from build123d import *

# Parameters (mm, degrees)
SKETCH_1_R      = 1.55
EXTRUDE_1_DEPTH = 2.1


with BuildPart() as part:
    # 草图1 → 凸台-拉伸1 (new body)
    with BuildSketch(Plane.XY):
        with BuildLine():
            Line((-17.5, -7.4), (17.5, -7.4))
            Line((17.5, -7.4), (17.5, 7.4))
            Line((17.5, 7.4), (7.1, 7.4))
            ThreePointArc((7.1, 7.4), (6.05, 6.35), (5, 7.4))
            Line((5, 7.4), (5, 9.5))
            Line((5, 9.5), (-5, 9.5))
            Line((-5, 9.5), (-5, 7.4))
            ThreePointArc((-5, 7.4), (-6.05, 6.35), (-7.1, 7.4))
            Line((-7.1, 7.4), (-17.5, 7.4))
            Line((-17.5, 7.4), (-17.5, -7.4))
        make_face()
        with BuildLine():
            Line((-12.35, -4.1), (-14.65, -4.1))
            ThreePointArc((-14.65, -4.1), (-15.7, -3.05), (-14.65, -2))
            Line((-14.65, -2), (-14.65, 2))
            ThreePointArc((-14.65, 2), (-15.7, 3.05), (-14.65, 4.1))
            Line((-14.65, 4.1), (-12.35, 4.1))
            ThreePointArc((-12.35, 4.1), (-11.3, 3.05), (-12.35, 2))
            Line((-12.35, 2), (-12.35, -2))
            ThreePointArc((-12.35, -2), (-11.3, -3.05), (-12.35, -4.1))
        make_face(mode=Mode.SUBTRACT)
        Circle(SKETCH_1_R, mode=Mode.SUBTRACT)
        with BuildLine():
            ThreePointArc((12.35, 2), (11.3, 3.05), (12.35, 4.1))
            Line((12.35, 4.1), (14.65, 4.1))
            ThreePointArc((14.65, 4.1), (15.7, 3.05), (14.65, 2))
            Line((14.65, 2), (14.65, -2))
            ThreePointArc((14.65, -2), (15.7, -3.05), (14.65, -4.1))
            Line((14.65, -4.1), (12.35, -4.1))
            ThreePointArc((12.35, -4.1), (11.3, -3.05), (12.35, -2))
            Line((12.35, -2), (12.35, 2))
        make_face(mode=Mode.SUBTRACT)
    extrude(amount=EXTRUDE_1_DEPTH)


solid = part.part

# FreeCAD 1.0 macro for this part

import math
import FreeCAD as App
import Part
import Sketcher

doc = App.newDocument("Part")
body = doc.addObject("PartDesign::Body", "Body")

sketch1 = body.newObject("Sketcher::SketchObject", "Sketch")
sketch1.AttachmentSupport = (doc.getObject("XY_Plane"), [""])
sketch1.MapMode = "FlatFace"
sketch1.addGeometry([
    Part.LineSegment(App.Vector(-17.5, -7.4, 0), App.Vector(17.5, -7.4, 0)),
    Part.LineSegment(App.Vector(17.5, -7.4, 0), App.Vector(17.5, 7.4, 0)),
    Part.LineSegment(App.Vector(17.5, 7.4, 0), App.Vector(7.1, 7.4, 0)),
    Part.ArcOfCircle(Part.Circle(App.Vector(6, 7.4, 0), App.Vector(0, 0, 1), 1.1), math.radians(180), math.radians(360)),
    Part.LineSegment(App.Vector(5, 7.4, 0), App.Vector(5, 9.5, 0)),
    Part.LineSegment(App.Vector(5, 9.5, 0), App.Vector(-5, 9.5, 0)),
    Part.LineSegment(App.Vector(-5, 9.5, 0), App.Vector(-5, 7.4, 0)),
    Part.ArcOfCircle(Part.Circle(App.Vector(-6, 7.4, 0), App.Vector(0, 0, 1), 1.1), math.radians(180), math.radians(360)),
    Part.LineSegment(App.Vector(-7.1, 7.4, 0), App.Vector(-17.5, 7.4, 0)),
    Part.LineSegment(App.Vector(-17.5, 7.4, 0), App.Vector(-17.5, -7.4, 0)),
    Part.ArcOfCircle(Part.Circle(App.Vector(-12.3, -3, 0), App.Vector(0, 0, 1), 1.1), math.radians(-90), math.radians(90)),
    Part.LineSegment(App.Vector(-12.3, -4.1, 0), App.Vector(-14.7, -4.1, 0)),
    Part.ArcOfCircle(Part.Circle(App.Vector(-14.7, -3, 0), App.Vector(0, 0, 1), 1.1), math.radians(90), math.radians(270)),
    Part.LineSegment(App.Vector(-14.7, -2, 0), App.Vector(-14.7, 2, 0)),
    Part.ArcOfCircle(Part.Circle(App.Vector(-14.7, 3, 0), App.Vector(0, 0, 1), 1.1), math.radians(90), math.radians(270)),
    Part.LineSegment(App.Vector(-14.7, 4.1, 0), App.Vector(-12.3, 4.1, 0)),
    Part.ArcOfCircle(Part.Circle(App.Vector(-12.3, 3, 0), App.Vector(0, 0, 1), 1.1), math.radians(-90), math.radians(90)),
    Part.LineSegment(App.Vector(-12.3, 2, 0), App.Vector(-12.3, -2, 0)),
    Part.Circle(App.Vector(0, 0, 0), App.Vector(0, 0, 1), 1.6),
    Part.LineSegment(App.Vector(12.3, -2, 0), App.Vector(12.3, 2, 0)),
    Part.ArcOfCircle(Part.Circle(App.Vector(12.3, 3, 0), App.Vector(0, 0, 1), 1.1), math.radians(90), math.radians(270)),
    Part.LineSegment(App.Vector(12.3, 4.1, 0), App.Vector(14.7, 4.1, 0)),
    Part.ArcOfCircle(Part.Circle(App.Vector(14.7, 3, 0), App.Vector(0, 0, 1), 1.1), math.radians(-90), math.radians(90)),
    Part.LineSegment(App.Vector(14.7, 2, 0), App.Vector(14.7, -2, 0)),
    Part.ArcOfCircle(Part.Circle(App.Vector(14.7, -3, 0), App.Vector(0, 0, 1), 1.1), math.radians(-90), math.radians(90)),
    Part.LineSegment(App.Vector(14.7, -4.1, 0), App.Vector(12.3, -4.1, 0)),
    Part.ArcOfCircle(Part.Circle(App.Vector(12.3, -3, 0), App.Vector(0, 0, 1), 1.1), math.radians(90), math.radians(270)),
], False)
sketch1.addConstraint([
    Sketcher.Constraint("Coincident", 0, 2, 1, 1),
    Sketcher.Constraint("Coincident", 1, 2, 2, 1),
    Sketcher.Constraint("Coincident", 2, 2, 3, 2),
    Sketcher.Constraint("Tangent", 3, 1, 4, 1),
    Sketcher.Constraint("Coincident", 4, 2, 5, 1),
    Sketcher.Constraint("Coincident", 5, 2, 6, 1),
    Sketcher.Constraint("Tangent", 6, 2, 7, 2),
    Sketcher.Constraint("Coincident", 7, 1, 8, 1),
    Sketcher.Constraint("Coincident", 8, 2, 9, 1),
    Sketcher.Constraint("Coincident", 9, 2, 0, 1),
    Sketcher.Constraint("Tangent", 10, 1, 11, 1),
    Sketcher.Constraint("Tangent", 11, 2, 12, 2),
    Sketcher.Constraint("Coincident", 12, 1, 13, 1),
    Sketcher.Constraint("Coincident", 13, 2, 14, 2),
    Sketcher.Constraint("Tangent", 14, 1, 15, 1),
    Sketcher.Constraint("Tangent", 15, 2, 16, 2),
    Sketcher.Constraint("Coincident", 16, 1, 17, 1),
    Sketcher.Constraint("Coincident", 17, 2, 10, 2),
    Sketcher.Constraint("Coincident", 19, 2, 20, 2),
    Sketcher.Constraint("Tangent", 20, 1, 21, 1),
    Sketcher.Constraint("Tangent", 21, 2, 22, 2),
    Sketcher.Constraint("Coincident", 22, 1, 23, 1),
    Sketcher.Constraint("Coincident", 23, 2, 24, 2),
    Sketcher.Constraint("Tangent", 24, 1, 25, 1),
    Sketcher.Constraint("Tangent", 25, 2, 26, 2),
    Sketcher.Constraint("Coincident", 26, 1, 19, 1),
    Sketcher.Constraint("Horizontal", 0),
    Sketcher.Constraint("Vertical", 1),
    Sketcher.Constraint("Horizontal", 2),
    Sketcher.Constraint("Vertical", 4),
    Sketcher.Constraint("Horizontal", 5),
    Sketcher.Constraint("Vertical", 6),
    Sketcher.Constraint("Horizontal", 8),
    Sketcher.Constraint("Vertical", 9),
    Sketcher.Constraint("Horizontal", 11),
    Sketcher.Constraint("Vertical", 13),
    Sketcher.Constraint("Horizontal", 15),
    Sketcher.Constraint("Vertical", 17),
    Sketcher.Constraint("Vertical", 19),
    Sketcher.Constraint("Horizontal", 21),
    Sketcher.Constraint("Vertical", 23),
    Sketcher.Constraint("Horizontal", 25),
    Sketcher.Constraint("Coincident", 18, 3, -1, 1),
    Sketcher.Constraint("Equal", 3, 7),
    Sketcher.Constraint("Equal", 7, 10),
    Sketcher.Constraint("Equal", 10, 12),
    Sketcher.Constraint("Equal", 12, 14),
    Sketcher.Constraint("Equal", 14, 16),
    Sketcher.Constraint("Equal", 16, 20),
    Sketcher.Constraint("Equal", 20, 22),
    Sketcher.Constraint("Equal", 22, 24),
    Sketcher.Constraint("Equal", 24, 26),
    Sketcher.Constraint("Symmetric", 10, 3, 20, 3, -1, 1),
    Sketcher.Constraint("Symmetric", 14, 3, 24, 3, -1, 1),
    Sketcher.Constraint("Symmetric", 0, 2, 8, 2, -1, 1),
    Sketcher.Constraint("Symmetric", 3, 3, 7, 3, -2),
    Sketcher.Constraint("Symmetric", 16, 3, 20, 3, -2),
    Sketcher.Constraint("Horizontal", 7, 3, 1, 2),
    Sketcher.Constraint("Horizontal", 6, 2, 7, 1),
    Sketcher.Constraint("Vertical", 12, 3, 14, 3),
    Sketcher.Constraint("Vertical", 22, 3, 24, 3),
    Sketcher.Constraint("Vertical", 20, 3, 26, 3),
    Sketcher.Constraint("Vertical", 11, 2, 12, 1),
    Sketcher.Constraint("Vertical", 15, 2, 16, 1),
    Sketcher.Constraint("Vertical", 26, 3, 19, 2),
    Sketcher.Constraint("Vertical", 21, 2, 22, 1),
    Sketcher.Constraint("Diameter", 18, 3.1),
    Sketcher.Constraint("DistanceX", 0, 1, 0, 2, 35.0),
    Sketcher.Constraint("DistanceX", 5, 2, 5, 1, 10.0),
    Sketcher.Constraint("DistanceY", 13, 1, 13, 2, 4.0),
    Sketcher.Constraint("Radius", 3, 1.05),
    Sketcher.Constraint("DistanceX", 11, 2, 11, 1, 2.3),
    Sketcher.Constraint("DistanceY", 1, 1, 1, 2, 14.8),
    Sketcher.Constraint("DistanceY", 4, 1, 4, 2, 2.1),
    Sketcher.Constraint("DistanceX", 16, 3, 22, 3, 27.0),
])
pad1 = body.newObject("PartDesign::Pad", "Pad")
pad1.Profile = sketch1
pad1.Length = 2.1

doc.recompute()
